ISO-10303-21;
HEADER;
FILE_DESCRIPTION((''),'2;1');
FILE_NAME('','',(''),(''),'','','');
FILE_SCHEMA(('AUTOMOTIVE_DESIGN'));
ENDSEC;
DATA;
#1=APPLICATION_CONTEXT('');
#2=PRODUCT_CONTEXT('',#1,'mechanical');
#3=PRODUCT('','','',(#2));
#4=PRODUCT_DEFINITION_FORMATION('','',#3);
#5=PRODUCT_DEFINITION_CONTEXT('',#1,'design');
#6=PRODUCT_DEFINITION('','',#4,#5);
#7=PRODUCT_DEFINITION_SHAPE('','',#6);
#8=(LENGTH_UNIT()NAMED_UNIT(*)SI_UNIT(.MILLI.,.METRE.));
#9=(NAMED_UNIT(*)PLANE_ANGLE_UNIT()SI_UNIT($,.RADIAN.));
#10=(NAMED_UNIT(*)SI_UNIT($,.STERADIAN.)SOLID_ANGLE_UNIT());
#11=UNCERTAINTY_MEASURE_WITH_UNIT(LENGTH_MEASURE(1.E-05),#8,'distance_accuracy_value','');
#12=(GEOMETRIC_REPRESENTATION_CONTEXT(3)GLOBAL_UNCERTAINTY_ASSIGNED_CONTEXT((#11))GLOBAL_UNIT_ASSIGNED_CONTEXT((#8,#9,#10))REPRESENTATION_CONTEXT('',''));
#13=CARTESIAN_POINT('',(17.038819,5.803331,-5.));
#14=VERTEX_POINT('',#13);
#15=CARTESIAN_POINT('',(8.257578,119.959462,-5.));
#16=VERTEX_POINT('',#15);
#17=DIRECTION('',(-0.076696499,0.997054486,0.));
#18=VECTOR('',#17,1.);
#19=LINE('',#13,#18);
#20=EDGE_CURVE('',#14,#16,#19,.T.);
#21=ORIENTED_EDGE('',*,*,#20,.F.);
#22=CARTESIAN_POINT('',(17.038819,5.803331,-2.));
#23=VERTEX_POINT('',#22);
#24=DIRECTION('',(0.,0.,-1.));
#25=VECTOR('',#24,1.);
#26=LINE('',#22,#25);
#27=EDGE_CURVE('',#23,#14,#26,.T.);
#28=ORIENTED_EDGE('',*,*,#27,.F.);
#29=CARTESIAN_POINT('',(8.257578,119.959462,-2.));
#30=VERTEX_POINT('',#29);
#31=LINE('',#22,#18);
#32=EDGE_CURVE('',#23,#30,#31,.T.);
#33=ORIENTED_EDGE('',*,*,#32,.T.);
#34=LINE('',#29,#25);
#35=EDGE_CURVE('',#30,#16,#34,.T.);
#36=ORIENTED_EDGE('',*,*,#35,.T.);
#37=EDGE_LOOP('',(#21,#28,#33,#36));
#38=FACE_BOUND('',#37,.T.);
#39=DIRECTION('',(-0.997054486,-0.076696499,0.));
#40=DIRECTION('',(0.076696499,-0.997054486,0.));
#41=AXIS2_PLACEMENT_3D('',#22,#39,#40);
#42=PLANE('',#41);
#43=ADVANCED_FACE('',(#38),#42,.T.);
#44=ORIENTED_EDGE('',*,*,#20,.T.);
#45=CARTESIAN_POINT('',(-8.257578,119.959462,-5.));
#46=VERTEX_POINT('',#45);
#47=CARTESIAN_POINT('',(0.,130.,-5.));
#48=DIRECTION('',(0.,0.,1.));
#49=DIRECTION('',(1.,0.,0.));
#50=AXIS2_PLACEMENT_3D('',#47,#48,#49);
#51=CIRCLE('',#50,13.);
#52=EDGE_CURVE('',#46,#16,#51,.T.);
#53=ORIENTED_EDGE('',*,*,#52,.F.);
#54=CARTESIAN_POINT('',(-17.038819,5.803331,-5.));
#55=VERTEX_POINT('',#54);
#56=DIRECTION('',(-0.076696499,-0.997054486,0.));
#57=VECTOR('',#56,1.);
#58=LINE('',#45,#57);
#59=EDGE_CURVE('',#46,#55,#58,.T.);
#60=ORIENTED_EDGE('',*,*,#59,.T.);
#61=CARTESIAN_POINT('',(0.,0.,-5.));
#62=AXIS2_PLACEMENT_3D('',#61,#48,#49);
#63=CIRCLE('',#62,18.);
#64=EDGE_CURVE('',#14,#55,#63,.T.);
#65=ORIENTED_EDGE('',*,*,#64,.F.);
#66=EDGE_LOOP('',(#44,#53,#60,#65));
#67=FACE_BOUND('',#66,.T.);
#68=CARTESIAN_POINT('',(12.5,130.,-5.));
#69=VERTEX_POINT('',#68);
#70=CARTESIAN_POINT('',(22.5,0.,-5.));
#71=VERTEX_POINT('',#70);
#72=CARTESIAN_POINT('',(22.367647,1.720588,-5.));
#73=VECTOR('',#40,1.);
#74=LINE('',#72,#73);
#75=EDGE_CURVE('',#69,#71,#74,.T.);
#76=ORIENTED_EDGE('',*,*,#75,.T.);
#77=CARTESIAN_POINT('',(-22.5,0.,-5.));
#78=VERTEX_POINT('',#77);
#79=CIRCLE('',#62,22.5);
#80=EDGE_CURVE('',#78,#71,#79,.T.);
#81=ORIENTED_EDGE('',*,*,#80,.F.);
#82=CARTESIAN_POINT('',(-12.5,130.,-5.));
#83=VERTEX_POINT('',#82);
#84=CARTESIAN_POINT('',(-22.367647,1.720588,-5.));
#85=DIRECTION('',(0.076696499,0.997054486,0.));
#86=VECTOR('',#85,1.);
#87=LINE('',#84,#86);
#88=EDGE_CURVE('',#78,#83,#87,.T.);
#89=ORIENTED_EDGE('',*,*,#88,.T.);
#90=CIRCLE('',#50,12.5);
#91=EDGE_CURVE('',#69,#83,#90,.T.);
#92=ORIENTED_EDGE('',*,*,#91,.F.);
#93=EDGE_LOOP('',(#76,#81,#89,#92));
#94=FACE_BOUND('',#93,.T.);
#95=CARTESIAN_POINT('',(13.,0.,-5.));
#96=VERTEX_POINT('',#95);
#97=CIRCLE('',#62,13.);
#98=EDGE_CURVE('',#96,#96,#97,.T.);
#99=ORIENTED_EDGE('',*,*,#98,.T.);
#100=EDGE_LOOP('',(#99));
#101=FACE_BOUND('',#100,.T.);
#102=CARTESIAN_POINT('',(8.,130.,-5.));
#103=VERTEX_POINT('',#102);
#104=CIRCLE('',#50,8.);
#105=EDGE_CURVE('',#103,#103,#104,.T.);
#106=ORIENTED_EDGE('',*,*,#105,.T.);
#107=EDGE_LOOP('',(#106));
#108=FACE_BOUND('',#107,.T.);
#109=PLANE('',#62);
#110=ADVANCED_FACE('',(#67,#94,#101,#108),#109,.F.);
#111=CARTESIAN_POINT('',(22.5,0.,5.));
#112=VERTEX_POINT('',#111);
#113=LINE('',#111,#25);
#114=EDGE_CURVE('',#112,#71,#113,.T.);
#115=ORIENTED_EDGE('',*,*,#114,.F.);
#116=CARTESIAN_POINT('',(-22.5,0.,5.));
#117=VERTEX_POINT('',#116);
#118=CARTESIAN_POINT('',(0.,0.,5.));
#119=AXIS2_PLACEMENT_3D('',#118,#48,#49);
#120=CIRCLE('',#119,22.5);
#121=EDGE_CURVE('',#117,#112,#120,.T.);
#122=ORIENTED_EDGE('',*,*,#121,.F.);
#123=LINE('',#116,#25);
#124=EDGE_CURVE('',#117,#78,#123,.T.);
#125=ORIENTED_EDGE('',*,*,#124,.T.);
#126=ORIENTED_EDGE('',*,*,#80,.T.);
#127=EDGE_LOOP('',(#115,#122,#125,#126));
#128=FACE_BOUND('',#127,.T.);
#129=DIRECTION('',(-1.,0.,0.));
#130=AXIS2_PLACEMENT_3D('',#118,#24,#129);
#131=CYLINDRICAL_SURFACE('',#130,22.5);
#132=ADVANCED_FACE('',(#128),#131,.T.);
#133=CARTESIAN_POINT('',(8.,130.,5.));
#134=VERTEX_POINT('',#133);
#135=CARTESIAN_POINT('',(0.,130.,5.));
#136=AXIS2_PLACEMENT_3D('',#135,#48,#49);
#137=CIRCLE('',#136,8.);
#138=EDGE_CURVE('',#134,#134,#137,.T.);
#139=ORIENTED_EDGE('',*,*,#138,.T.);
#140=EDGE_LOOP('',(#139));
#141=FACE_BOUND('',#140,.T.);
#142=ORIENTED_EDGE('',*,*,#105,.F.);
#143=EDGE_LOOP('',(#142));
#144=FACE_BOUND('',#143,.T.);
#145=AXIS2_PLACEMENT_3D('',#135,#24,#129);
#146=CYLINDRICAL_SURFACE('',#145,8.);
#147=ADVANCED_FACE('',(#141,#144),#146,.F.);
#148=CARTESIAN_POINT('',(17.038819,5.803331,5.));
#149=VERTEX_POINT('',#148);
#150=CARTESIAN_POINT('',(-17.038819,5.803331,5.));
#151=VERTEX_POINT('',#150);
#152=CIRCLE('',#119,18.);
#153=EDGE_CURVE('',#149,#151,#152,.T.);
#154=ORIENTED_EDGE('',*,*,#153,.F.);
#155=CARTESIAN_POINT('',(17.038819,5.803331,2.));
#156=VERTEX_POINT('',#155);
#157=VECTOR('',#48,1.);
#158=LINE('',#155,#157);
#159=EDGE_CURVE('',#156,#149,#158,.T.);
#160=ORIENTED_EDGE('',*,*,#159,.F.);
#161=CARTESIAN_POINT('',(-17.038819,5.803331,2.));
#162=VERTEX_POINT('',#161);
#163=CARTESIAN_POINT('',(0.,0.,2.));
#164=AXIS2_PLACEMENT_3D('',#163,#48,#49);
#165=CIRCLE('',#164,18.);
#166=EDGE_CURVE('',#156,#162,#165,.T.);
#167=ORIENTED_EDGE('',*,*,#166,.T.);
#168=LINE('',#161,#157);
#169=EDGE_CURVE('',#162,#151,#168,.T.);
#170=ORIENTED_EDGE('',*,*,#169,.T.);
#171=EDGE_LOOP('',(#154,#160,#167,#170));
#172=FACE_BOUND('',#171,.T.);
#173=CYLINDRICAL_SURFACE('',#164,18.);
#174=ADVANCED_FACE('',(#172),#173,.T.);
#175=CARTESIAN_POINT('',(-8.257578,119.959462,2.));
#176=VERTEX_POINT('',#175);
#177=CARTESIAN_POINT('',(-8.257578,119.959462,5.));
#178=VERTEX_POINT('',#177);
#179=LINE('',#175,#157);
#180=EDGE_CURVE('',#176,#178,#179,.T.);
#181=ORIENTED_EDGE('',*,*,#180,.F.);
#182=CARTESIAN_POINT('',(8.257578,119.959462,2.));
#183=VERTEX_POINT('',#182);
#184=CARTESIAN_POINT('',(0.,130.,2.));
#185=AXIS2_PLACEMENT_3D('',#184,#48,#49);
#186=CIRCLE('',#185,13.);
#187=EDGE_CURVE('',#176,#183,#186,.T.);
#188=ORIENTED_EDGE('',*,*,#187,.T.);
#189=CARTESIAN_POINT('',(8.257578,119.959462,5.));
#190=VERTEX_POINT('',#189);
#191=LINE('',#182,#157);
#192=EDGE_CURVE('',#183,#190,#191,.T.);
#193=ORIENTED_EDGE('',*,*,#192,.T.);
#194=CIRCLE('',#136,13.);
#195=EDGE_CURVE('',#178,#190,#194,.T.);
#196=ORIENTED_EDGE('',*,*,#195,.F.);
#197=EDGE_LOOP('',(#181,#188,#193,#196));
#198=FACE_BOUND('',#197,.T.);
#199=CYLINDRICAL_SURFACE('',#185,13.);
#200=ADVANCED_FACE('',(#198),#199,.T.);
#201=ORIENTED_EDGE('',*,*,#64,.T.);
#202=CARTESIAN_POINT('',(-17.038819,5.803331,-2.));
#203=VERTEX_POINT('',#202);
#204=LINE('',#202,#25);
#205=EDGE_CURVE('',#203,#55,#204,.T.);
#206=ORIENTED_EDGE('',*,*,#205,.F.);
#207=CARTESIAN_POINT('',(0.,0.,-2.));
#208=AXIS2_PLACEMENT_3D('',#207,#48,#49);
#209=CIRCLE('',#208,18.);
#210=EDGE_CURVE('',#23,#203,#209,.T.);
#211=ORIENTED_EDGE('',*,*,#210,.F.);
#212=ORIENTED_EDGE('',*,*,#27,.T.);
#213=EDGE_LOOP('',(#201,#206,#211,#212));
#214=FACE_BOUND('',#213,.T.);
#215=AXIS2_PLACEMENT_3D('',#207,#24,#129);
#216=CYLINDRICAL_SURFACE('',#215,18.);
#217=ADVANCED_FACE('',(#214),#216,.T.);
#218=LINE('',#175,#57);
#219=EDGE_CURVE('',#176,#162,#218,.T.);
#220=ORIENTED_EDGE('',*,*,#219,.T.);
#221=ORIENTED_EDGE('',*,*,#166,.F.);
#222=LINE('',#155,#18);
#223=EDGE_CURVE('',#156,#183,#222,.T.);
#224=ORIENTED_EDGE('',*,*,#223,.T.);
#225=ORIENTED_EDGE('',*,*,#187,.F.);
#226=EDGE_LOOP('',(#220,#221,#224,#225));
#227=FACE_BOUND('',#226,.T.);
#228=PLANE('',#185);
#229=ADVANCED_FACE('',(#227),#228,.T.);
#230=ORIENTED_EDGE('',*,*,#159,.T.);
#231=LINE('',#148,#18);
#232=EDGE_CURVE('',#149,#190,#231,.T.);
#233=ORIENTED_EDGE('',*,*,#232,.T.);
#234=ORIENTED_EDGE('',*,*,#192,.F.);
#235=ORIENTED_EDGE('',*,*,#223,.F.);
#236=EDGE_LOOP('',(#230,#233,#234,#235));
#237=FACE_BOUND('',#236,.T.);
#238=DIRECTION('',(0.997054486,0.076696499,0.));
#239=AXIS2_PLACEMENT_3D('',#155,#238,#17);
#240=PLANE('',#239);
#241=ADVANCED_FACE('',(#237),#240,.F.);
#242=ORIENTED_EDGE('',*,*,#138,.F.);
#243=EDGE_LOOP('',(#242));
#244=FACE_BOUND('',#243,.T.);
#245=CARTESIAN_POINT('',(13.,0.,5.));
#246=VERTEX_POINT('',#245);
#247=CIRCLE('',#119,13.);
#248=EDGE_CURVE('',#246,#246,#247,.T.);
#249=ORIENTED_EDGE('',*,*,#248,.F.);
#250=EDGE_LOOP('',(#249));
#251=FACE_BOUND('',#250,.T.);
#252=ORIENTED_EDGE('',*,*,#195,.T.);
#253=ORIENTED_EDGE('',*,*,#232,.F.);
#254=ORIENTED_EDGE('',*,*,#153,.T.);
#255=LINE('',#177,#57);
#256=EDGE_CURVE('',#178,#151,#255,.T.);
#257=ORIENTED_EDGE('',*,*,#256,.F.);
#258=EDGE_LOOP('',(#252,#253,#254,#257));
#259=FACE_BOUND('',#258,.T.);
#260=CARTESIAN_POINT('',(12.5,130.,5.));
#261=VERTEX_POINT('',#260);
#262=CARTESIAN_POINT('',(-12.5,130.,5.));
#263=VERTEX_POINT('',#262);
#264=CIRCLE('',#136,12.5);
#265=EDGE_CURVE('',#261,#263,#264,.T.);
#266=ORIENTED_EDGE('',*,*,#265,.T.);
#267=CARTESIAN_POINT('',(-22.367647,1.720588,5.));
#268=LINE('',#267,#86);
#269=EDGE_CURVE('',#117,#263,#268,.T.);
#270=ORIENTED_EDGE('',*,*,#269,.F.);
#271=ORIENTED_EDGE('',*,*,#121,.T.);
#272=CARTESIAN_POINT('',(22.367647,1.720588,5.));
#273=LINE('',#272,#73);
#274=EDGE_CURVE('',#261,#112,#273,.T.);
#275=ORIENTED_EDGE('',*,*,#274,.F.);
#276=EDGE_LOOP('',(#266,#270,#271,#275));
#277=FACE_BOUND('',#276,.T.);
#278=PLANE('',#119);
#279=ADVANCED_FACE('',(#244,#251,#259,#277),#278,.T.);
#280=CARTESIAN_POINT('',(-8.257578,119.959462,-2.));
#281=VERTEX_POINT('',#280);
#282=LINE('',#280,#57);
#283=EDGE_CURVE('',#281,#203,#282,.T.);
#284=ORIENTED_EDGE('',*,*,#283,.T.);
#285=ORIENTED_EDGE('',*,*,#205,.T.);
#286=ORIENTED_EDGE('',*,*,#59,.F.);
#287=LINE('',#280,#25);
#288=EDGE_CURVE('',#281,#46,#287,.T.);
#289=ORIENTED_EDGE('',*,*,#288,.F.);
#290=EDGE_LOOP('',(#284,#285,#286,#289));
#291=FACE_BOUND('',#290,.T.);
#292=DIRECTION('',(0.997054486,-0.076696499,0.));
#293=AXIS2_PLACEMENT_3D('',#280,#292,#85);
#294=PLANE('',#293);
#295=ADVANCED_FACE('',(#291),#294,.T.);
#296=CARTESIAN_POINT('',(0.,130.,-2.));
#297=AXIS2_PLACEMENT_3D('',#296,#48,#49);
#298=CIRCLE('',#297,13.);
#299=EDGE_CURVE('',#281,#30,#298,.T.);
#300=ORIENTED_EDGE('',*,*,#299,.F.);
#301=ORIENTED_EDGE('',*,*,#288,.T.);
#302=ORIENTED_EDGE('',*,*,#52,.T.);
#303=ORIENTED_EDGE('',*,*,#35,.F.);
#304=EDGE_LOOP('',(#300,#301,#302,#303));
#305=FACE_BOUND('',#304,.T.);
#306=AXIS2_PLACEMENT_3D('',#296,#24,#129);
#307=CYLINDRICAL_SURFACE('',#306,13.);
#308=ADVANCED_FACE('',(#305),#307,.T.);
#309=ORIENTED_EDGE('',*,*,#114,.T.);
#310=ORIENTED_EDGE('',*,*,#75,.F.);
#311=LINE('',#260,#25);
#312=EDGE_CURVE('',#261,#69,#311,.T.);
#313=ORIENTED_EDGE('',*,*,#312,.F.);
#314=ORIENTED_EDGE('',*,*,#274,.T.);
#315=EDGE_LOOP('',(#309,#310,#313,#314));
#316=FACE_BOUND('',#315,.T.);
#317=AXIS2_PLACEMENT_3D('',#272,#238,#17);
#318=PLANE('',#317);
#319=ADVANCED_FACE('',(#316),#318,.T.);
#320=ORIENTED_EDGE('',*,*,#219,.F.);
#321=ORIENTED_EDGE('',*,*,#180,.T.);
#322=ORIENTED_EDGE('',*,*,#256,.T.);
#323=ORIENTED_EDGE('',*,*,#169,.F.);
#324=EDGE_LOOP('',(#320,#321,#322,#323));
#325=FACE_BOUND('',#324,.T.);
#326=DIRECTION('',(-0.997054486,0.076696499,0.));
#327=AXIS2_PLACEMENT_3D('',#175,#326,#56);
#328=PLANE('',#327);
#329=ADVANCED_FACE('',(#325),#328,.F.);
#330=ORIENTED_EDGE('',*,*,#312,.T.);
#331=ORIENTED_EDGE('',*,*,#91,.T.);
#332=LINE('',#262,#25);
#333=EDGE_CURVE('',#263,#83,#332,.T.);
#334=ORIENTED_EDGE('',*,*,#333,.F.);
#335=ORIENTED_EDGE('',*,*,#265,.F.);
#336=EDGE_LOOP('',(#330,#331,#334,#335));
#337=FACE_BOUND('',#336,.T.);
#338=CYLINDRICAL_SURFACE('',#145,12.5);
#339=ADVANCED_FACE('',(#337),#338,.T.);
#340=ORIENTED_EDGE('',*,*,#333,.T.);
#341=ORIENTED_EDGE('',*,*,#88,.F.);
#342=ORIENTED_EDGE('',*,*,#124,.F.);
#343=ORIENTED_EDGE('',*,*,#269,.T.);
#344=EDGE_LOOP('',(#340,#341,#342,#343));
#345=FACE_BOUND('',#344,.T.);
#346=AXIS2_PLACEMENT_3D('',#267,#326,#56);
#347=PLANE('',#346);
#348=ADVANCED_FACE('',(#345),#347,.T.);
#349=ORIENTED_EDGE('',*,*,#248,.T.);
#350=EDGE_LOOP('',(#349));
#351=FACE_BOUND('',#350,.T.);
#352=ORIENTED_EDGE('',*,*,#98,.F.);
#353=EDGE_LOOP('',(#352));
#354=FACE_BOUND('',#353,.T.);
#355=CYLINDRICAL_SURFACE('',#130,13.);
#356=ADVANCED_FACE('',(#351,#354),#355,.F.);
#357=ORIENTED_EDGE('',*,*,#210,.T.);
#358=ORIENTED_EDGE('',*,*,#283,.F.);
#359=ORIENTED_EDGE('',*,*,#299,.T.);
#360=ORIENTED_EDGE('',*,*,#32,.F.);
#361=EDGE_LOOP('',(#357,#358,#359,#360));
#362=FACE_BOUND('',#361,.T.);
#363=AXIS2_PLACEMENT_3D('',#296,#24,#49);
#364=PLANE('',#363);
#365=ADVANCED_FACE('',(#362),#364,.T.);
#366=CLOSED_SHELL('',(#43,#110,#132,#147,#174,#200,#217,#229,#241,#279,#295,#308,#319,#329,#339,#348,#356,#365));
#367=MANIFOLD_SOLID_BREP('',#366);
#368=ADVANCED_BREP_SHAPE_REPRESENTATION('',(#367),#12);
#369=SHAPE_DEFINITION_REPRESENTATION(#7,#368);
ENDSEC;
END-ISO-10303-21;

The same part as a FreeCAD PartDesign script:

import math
import FreeCAD as App
import Part
import Sketcher

V = App.Vector
Q = App.Units.Quantity

doc = App.newDocument("Part")
body = doc.addObject("PartDesign::Body", "Body")

# Sketch on XY plane
sketch1 = body.newObject("Sketcher::SketchObject", "Sketch")
sketch1.AttachmentSupport = (doc.getObject("XY_Plane"), [""])
sketch1.MapMode = "FlatFace"
sketch1.addGeometry(Part.ArcOfCircle(Part.Circle(V(0, 130, 0), V(0, 0, 1), 12.5), math.radians(0), math.radians(180)), False)
sketch1.addGeometry(Part.LineSegment(V(-12.5, 130, 0), V(-22.235294, 3.441176, 0)), False)
sketch1.addGeometry(Part.LineSegment(V(-22.235294, 3.441176, 0), V(-22.5, 0, 0)), False)
sketch1.addGeometry(Part.ArcOfCircle(Part.Circle(V(0, 0, 0), V(0, 0, 1), 22.5), math.radians(180), math.radians(360)), False)
sketch1.addGeometry(Part.LineSegment(V(22.5, 0, 0), V(22.235294, 3.441176, 0)), False)
sketch1.addGeometry(Part.LineSegment(V(22.235294, 3.441176, 0), V(12.5, 130, 0)), False)
sketch1.addGeometry(Part.Circle(V(0, 130, 0), V(0, 0, 1), 8), False)
sketch1.addGeometry(Part.Circle(V(0, 0, 0), V(0, 0, 1), 13), False)
sketch1.addConstraint(Sketcher.Constraint("Coincident", 0, 2, 1, 1))
sketch1.addConstraint(Sketcher.Constraint("Coincident", 1, 2, 2, 1))
sketch1.addConstraint(Sketcher.Constraint("Coincident", 2, 2, 3, 1))
sketch1.addConstraint(Sketcher.Constraint("Coincident", 3, 2, 4, 1))
sketch1.addConstraint(Sketcher.Constraint("Coincident", 4, 2, 5, 1))
sketch1.addConstraint(Sketcher.Constraint("Coincident", 5, 2, 0, 1))
sketch1.addConstraint(Sketcher.Constraint("Coincident", 3, 3, -1, 1))
sketch1.addConstraint(Sketcher.Constraint("Coincident", 7, 3, -1, 1))
sketch1.addConstraint(Sketcher.Constraint("Coincident", 6, 3, 0, 3))
sketch1.addConstraint(Sketcher.Constraint("Symmetric", 1, 2, 4, 2, -2))
sketch1.addConstraint(Sketcher.Constraint("Symmetric", 0, 2, 5, 2, -2))
sketch1.addConstraint(Sketcher.Constraint("PointOnObject", 2, 2, -1))
sketch1.addConstraint(Sketcher.Constraint("PointOnObject", 3, 2, -1))
sketch1.addConstraint(Sketcher.Constraint("Parallel", 1, 2))
sketch1.addConstraint(Sketcher.Constraint("Horizontal", 6, 3, 0, 2))
sketch1.addConstraint(Sketcher.Constraint("Diameter", 6, Q("16 mm")))
sketch1.addConstraint(Sketcher.Constraint("Diameter", 7, Q("26 mm")))
sketch1.addConstraint(Sketcher.Constraint("Radius", 0, Q("12.5 mm")))
sketch1.addConstraint(Sketcher.Constraint("Radius", 3, Q("22.5 mm")))
sketch1.addConstraint(Sketcher.Constraint("DistanceY", -1, 1, 0, 3, Q("130 mm")))
sketch1.addConstraint(Sketcher.Constraint("DistanceX", 1, 2, 4, 2, Q("44.470588 mm")))
pad1 = body.newObject("PartDesign::Pad", "Pad")
pad1.Profile = sketch1
pad1.Length = 10
pad1.Midplane = True

# Sketch on XY plane
sketch2 = body.newObject("Sketcher::SketchObject", "Sketch001")
sketch2.AttachmentSupport = (doc.getObject("XY_Plane"), [""])
sketch2.MapMode = "FlatFace"
sketch2.AttachmentOffset = App.Placement(V(0, 0, 5), App.Rotation())
sketch2.addGeometry(Part.LineSegment(V(-8.257578, 119.959462, 0), V(-17.038819, 5.803331, 0)), False)
sketch2.addGeometry(Part.ArcOfCircle(Part.Circle(V(0, 0, 0), V(0, 0, 1), 18), math.radians(18.80857), math.radians(161.19143)), False)
sketch2.addGeometry(Part.LineSegment(V(17.038819, 5.803331, 0), V(8.257578, 119.959462, 0)), False)
sketch2.addGeometry(Part.ArcOfCircle(Part.Circle(V(0, 130, 0), V(0, 0, 1), 13), math.radians(-129.434694), math.radians(-50.565306)), False)
sketch2.addConstraint(Sketcher.Constraint("Coincident", 0, 2, 1, 2))
sketch2.addConstraint(Sketcher.Constraint("Coincident", 1, 1, 2, 1))
sketch2.addConstraint(Sketcher.Constraint("Coincident", 2, 2, 3, 2))
sketch2.addConstraint(Sketcher.Constraint("Coincident", 3, 1, 0, 1))
sketch2.addConstraint(Sketcher.Constraint("Coincident", 1, 3, -1, 1))
sketch2.addConstraint(Sketcher.Constraint("Symmetric", 2, 2, 3, 1, -2))
sketch2.addConstraint(Sketcher.Constraint("Horizontal", 0, 2, 1, 1))
sketch2.addConstraint(Sketcher.Constraint("Radius", 1, Q("18 mm")))
sketch2.addConstraint(Sketcher.Constraint("Radius", 3, Q("13 mm")))
sketch2.addConstraint(Sketcher.Constraint("DistanceY", -1, 1, 3, 3, Q("130 mm")))
sketch2.addConstraint(Sketcher.Constraint("DistanceX", 0, 2, -1, 1, Q("17.038819 mm")))
sketch2.addConstraint(Sketcher.Constraint("DistanceX", -1, 1, 2, 2, Q("8.257578 mm")))
pocket1 = body.newObject("PartDesign::Pocket", "Pocket")
pocket1.Profile = sketch2
pocket1.Length = 3
doc.recompute()

mirrored = body.newObject("PartDesign::Mirrored", "Mirrored")
mirrored.Originals = [pocket1]
mirrored.MirrorPlane = (doc.getObject("XY_Plane"), [""])
body.Tip = mirrored

doc.recompute()
